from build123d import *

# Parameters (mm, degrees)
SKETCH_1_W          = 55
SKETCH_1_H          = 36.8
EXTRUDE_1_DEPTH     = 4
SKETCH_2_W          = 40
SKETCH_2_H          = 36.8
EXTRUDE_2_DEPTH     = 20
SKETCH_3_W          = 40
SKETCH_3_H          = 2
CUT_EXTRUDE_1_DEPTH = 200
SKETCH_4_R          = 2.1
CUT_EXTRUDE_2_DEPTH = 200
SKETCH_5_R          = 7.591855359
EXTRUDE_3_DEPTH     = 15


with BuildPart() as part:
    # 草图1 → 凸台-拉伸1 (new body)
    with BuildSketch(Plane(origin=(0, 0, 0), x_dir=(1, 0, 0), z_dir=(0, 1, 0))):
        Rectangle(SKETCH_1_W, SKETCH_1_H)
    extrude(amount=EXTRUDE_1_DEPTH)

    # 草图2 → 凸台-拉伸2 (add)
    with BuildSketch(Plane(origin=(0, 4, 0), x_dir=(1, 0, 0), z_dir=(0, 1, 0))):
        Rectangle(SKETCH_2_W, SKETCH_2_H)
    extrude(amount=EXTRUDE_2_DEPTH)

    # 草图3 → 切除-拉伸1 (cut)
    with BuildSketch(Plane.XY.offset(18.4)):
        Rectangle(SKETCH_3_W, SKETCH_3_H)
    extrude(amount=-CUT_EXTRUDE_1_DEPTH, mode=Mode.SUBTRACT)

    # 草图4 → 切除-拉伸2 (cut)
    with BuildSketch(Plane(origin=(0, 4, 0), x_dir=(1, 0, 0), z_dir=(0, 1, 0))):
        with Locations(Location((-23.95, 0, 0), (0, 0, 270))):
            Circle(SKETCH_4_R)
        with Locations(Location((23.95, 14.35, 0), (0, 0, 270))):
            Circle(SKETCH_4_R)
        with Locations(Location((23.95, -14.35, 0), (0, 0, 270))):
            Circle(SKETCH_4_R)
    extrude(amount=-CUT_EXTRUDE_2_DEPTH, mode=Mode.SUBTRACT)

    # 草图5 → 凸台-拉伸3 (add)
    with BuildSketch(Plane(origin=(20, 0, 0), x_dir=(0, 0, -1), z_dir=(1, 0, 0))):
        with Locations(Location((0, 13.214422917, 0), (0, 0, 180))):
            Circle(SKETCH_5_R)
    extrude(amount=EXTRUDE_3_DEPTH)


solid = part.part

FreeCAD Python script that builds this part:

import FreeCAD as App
import Part
import Sketcher

V = App.Vector

doc = App.newDocument("Part")
params = doc.addObject("Spreadsheet::Sheet", "Params")
for row, (alias, value) in enumerate([
    ("sketch1_width", "55 mm"),
    ("sketch1_height", "36.8 mm"),
    ("pad1_length", "4 mm"),
    ("sketch2_width", "40 mm"),
    ("sketch2_height", "36.8 mm"),
    ("pad2_length", "20 mm"),
    ("sketch3_width", "40 mm"),
    ("sketch3_height", "2 mm"),
    ("pocket1_length", "200 mm"),
    ("sketch4_diameter", "4.2 mm"),
    ("pocket2_length", "200 mm"),
    ("pad3_length", "15 mm"),
], start=1):
    params.set(f"A{row}", alias)
    params.set(f"B{row}", "=" + value)
    params.setAlias(f"B{row}", alias)

body = doc.addObject("PartDesign::Body", "Body")

sketch1 = body.newObject("Sketcher::SketchObject", "Sketch")
sketch1.AttachmentSupport = (doc.getObject("XZ_Plane"), [""])
sketch1.MapMode = "FlatFace"
sketch1.addGeometry(Part.LineSegment(V(-28, -18, 0), V(-28, 18, 0)), False)
sketch1.addGeometry(Part.LineSegment(V(-28, 18, 0), V(28, 18, 0)), False)
sketch1.addGeometry(Part.LineSegment(V(28, 18, 0), V(28, -18, 0)), False)
sketch1.addGeometry(Part.LineSegment(V(28, -18, 0), V(-28, -18, 0)), False)
sketch1.addConstraint(Sketcher.Constraint("Coincident", 0, 2, 1, 1))
sketch1.addConstraint(Sketcher.Constraint("Coincident", 1, 2, 2, 1))
sketch1.addConstraint(Sketcher.Constraint("Coincident", 2, 2, 3, 1))
sketch1.addConstraint(Sketcher.Constraint("Coincident", 3, 2, 0, 1))
sketch1.addConstraint(Sketcher.Constraint("Vertical", 0))
sketch1.addConstraint(Sketcher.Constraint("Horizontal", 1))
sketch1.addConstraint(Sketcher.Constraint("Vertical", 2))
sketch1.addConstraint(Sketcher.Constraint("Horizontal", 3))
sketch1.addConstraint(Sketcher.Constraint("Symmetric", 0, 2, 2, 2, -1, 1))
sketch1.addConstraint(Sketcher.Constraint("DistanceX", 1, 1, 1, 2, 55.0))
sketch1.addConstraint(Sketcher.Constraint("DistanceY", 0, 1, 0, 2, 36.8))
sketch1.setExpression("Constraints[9]", "Params.sketch1_width")
sketch1.setExpression("Constraints[10]", "Params.sketch1_height")
pad1 = body.newObject("PartDesign::Pad", "Pad")
pad1.Profile = sketch1
pad1.setExpression("Length", "Params.pad1_length")
pad1.Reversed = True

sketch2 = body.newObject("Sketcher::SketchObject", "Sketch001")
sketch2.AttachmentSupport = (doc.getObject("XZ_Plane"), [""])
sketch2.MapMode = "FlatFace"
sketch2.AttachmentOffset = App.Placement(V(0, 0, -4), App.Rotation())
sketch2.addGeometry(Part.LineSegment(V(-20, -18, 0), V(-20, 18, 0)), False)
sketch2.addGeometry(Part.LineSegment(V(-20, 18, 0), V(20, 18, 0)), False)
sketch2.addGeometry(Part.LineSegment(V(20, 18, 0), V(20, -18, 0)), False)
sketch2.addGeometry(Part.LineSegment(V(20, -18, 0), V(-20, -18, 0)), False)
sketch2.addConstraint(Sketcher.Constraint("Coincident", 0, 2, 1, 1))
sketch2.addConstraint(Sketcher.Constraint("Coincident", 1, 2, 2, 1))
sketch2.addConstraint(Sketcher.Constraint("Coincident", 2, 2, 3, 1))
sketch2.addConstraint(Sketcher.Constraint("Coincident", 3, 2, 0, 1))
sketch2.addConstraint(Sketcher.Constraint("Vertical", 0))
sketch2.addConstraint(Sketcher.Constraint("Horizontal", 1))
sketch2.addConstraint(Sketcher.Constraint("Vertical", 2))
sketch2.addConstraint(Sketcher.Constraint("Horizontal", 3))
sketch2.addConstraint(Sketcher.Constraint("Symmetric", 0, 2, 2, 2, -1, 1))
sketch2.addConstraint(Sketcher.Constraint("DistanceX", 1, 1, 1, 2, 40.0))
sketch2.addConstraint(Sketcher.Constraint("DistanceY", 0, 1, 0, 2, 36.8))
sketch2.setExpression("Constraints[9]", "Params.sketch2_width")
sketch2.setExpression("Constraints[10]", "Params.sketch2_height")
pad2 = body.newObject("PartDesign::Pad", "Pad001")
pad2.Profile = sketch2
pad2.setExpression("Length", "Params.pad2_length")
pad2.Reversed = True

sketch3 = body.newObject("Sketcher::SketchObject", "Sketch002")
sketch3.AttachmentSupport = (doc.getObject("XY_Plane"), [""])
sketch3.MapMode = "FlatFace"
sketch3.AttachmentOffset = App.Placement(V(0, 0, 18.4), App.Rotation())
sketch3.addGeometry(Part.LineSegment(V(-20, 1, 0), V(-20, -1, 0)), False)
sketch3.addGeometry(Part.LineSegment(V(-20, -1, 0), V(20, -1, 0)), False)
sketch3.addGeometry(Part.LineSegment(V(20, -1, 0), V(20, 1, 0)), False)
sketch3.addGeometry(Part.LineSegment(V(20, 1, 0), V(-20, 1, 0)), False)
sketch3.addConstraint(Sketcher.Constraint("Coincident", 0, 2, 1, 1))
sketch3.addConstraint(Sketcher.Constraint("Coincident", 1, 2, 2, 1))
sketch3.addConstraint(Sketcher.Constraint("Coincident", 2, 2, 3, 1))
sketch3.addConstraint(Sketcher.Constraint("Coincident", 3, 2, 0, 1))
sketch3.addConstraint(Sketcher.Constraint("Vertical", 0))
sketch3.addConstraint(Sketcher.Constraint("Horizontal", 1))
sketch3.addConstraint(Sketcher.Constraint("Vertical", 2))
sketch3.addConstraint(Sketcher.Constraint("Horizontal", 3))
sketch3.addConstraint(Sketcher.Constraint("Symmetric", 0, 2, 2, 2, -1, 1))
sketch3.addConstraint(Sketcher.Constraint("DistanceX", 1, 1, 1, 2, 40.0))
sketch3.addConstraint(Sketcher.Constraint("DistanceY", 0, 2, 0, 1, 2.0))
sketch3.setExpression("Constraints[9]", "Params.sketch3_width")
sketch3.setExpression("Constraints[10]", "Params.sketch3_height")
pocket1 = body.newObject("PartDesign::Pocket", "Pocket")
pocket1.Profile = sketch3
pocket1.setExpression("Length", "Params.pocket1_length")

sketch4 = body.newObject("Sketcher::SketchObject", "Sketch003")
sketch4.AttachmentSupport = (doc.getObject("XZ_Plane"), [""])
sketch4.MapMode = "FlatFace"
sketch4.AttachmentOffset = App.Placement(V(0, 0, -4), App.Rotation())
sketch4.addGeometry(Part.Circle(V(-23.9, 0, 0), V(0, 0, 1), 2.1), False)
sketch4.addGeometry(Part.Circle(V(23.9, -14.3, 0), V(0, 0, 1), 2.1), False)
sketch4.addGeometry(Part.Circle(V(23.9, 14.3, 0), V(0, 0, 1), 2.1), False)
sketch4.addConstraint(Sketcher.Constraint("Equal", 0, 1))
sketch4.addConstraint(Sketcher.Constraint("Equal", 1, 2))
sketch4.addConstraint(Sketcher.Constraint("Symmetric", 1, 3, 2, 3, -1))
sketch4.addConstraint(Sketcher.Constraint("PointOnObject", 0, 3, -1))
sketch4.addConstraint(Sketcher.Constraint("Diameter", 0, 4.2))
sketch4.addConstraint(Sketcher.Constraint("DistanceX", 0, 3, 1, 3, 47.9))
sketch4.addConstraint(Sketcher.Constraint("DistanceY", 1, 3, 2, 3, 28.7))
sketch4.addConstraint(Sketcher.Constraint("DistanceX", 0, 3, -1, 1, 23.95))
sketch4.setExpression("Constraints[4]", "Params.sketch4_diameter")
pocket2 = body.newObject("PartDesign::Pocket", "Pocket001")
pocket2.Profile = sketch4
pocket2.setExpression("Length", "Params.pocket2_length")
pocket2.Reversed = True

sketch5 = body.newObject("Sketcher::SketchObject", "Sketch004")
sketch5.AttachmentSupport = (doc.getObject("YZ_Plane"), [""])
sketch5.MapMode = "FlatFace"
sketch5.AttachmentOffset = App.Placement(V(0, 0, 20), App.Rotation())
sketch5.addGeometry(Part.Circle(V(13, 0, 0), V(0, 0, 1), 8), False)
sketch5.addConstraint(Sketcher.Constraint("PointOnObject", 0, 3, -1))
sketch5.addConstraint(Sketcher.Constraint("Diameter", 0, 15.183711))
sketch5.addConstraint(Sketcher.Constraint("DistanceX", -1, 1, 0, 3, 13.214423))
pad3 = body.newObject("PartDesign::Pad", "Pad002")
pad3.Profile = sketch5
pad3.setExpression("Length", "Params.pad3_length")

doc.recompute()
